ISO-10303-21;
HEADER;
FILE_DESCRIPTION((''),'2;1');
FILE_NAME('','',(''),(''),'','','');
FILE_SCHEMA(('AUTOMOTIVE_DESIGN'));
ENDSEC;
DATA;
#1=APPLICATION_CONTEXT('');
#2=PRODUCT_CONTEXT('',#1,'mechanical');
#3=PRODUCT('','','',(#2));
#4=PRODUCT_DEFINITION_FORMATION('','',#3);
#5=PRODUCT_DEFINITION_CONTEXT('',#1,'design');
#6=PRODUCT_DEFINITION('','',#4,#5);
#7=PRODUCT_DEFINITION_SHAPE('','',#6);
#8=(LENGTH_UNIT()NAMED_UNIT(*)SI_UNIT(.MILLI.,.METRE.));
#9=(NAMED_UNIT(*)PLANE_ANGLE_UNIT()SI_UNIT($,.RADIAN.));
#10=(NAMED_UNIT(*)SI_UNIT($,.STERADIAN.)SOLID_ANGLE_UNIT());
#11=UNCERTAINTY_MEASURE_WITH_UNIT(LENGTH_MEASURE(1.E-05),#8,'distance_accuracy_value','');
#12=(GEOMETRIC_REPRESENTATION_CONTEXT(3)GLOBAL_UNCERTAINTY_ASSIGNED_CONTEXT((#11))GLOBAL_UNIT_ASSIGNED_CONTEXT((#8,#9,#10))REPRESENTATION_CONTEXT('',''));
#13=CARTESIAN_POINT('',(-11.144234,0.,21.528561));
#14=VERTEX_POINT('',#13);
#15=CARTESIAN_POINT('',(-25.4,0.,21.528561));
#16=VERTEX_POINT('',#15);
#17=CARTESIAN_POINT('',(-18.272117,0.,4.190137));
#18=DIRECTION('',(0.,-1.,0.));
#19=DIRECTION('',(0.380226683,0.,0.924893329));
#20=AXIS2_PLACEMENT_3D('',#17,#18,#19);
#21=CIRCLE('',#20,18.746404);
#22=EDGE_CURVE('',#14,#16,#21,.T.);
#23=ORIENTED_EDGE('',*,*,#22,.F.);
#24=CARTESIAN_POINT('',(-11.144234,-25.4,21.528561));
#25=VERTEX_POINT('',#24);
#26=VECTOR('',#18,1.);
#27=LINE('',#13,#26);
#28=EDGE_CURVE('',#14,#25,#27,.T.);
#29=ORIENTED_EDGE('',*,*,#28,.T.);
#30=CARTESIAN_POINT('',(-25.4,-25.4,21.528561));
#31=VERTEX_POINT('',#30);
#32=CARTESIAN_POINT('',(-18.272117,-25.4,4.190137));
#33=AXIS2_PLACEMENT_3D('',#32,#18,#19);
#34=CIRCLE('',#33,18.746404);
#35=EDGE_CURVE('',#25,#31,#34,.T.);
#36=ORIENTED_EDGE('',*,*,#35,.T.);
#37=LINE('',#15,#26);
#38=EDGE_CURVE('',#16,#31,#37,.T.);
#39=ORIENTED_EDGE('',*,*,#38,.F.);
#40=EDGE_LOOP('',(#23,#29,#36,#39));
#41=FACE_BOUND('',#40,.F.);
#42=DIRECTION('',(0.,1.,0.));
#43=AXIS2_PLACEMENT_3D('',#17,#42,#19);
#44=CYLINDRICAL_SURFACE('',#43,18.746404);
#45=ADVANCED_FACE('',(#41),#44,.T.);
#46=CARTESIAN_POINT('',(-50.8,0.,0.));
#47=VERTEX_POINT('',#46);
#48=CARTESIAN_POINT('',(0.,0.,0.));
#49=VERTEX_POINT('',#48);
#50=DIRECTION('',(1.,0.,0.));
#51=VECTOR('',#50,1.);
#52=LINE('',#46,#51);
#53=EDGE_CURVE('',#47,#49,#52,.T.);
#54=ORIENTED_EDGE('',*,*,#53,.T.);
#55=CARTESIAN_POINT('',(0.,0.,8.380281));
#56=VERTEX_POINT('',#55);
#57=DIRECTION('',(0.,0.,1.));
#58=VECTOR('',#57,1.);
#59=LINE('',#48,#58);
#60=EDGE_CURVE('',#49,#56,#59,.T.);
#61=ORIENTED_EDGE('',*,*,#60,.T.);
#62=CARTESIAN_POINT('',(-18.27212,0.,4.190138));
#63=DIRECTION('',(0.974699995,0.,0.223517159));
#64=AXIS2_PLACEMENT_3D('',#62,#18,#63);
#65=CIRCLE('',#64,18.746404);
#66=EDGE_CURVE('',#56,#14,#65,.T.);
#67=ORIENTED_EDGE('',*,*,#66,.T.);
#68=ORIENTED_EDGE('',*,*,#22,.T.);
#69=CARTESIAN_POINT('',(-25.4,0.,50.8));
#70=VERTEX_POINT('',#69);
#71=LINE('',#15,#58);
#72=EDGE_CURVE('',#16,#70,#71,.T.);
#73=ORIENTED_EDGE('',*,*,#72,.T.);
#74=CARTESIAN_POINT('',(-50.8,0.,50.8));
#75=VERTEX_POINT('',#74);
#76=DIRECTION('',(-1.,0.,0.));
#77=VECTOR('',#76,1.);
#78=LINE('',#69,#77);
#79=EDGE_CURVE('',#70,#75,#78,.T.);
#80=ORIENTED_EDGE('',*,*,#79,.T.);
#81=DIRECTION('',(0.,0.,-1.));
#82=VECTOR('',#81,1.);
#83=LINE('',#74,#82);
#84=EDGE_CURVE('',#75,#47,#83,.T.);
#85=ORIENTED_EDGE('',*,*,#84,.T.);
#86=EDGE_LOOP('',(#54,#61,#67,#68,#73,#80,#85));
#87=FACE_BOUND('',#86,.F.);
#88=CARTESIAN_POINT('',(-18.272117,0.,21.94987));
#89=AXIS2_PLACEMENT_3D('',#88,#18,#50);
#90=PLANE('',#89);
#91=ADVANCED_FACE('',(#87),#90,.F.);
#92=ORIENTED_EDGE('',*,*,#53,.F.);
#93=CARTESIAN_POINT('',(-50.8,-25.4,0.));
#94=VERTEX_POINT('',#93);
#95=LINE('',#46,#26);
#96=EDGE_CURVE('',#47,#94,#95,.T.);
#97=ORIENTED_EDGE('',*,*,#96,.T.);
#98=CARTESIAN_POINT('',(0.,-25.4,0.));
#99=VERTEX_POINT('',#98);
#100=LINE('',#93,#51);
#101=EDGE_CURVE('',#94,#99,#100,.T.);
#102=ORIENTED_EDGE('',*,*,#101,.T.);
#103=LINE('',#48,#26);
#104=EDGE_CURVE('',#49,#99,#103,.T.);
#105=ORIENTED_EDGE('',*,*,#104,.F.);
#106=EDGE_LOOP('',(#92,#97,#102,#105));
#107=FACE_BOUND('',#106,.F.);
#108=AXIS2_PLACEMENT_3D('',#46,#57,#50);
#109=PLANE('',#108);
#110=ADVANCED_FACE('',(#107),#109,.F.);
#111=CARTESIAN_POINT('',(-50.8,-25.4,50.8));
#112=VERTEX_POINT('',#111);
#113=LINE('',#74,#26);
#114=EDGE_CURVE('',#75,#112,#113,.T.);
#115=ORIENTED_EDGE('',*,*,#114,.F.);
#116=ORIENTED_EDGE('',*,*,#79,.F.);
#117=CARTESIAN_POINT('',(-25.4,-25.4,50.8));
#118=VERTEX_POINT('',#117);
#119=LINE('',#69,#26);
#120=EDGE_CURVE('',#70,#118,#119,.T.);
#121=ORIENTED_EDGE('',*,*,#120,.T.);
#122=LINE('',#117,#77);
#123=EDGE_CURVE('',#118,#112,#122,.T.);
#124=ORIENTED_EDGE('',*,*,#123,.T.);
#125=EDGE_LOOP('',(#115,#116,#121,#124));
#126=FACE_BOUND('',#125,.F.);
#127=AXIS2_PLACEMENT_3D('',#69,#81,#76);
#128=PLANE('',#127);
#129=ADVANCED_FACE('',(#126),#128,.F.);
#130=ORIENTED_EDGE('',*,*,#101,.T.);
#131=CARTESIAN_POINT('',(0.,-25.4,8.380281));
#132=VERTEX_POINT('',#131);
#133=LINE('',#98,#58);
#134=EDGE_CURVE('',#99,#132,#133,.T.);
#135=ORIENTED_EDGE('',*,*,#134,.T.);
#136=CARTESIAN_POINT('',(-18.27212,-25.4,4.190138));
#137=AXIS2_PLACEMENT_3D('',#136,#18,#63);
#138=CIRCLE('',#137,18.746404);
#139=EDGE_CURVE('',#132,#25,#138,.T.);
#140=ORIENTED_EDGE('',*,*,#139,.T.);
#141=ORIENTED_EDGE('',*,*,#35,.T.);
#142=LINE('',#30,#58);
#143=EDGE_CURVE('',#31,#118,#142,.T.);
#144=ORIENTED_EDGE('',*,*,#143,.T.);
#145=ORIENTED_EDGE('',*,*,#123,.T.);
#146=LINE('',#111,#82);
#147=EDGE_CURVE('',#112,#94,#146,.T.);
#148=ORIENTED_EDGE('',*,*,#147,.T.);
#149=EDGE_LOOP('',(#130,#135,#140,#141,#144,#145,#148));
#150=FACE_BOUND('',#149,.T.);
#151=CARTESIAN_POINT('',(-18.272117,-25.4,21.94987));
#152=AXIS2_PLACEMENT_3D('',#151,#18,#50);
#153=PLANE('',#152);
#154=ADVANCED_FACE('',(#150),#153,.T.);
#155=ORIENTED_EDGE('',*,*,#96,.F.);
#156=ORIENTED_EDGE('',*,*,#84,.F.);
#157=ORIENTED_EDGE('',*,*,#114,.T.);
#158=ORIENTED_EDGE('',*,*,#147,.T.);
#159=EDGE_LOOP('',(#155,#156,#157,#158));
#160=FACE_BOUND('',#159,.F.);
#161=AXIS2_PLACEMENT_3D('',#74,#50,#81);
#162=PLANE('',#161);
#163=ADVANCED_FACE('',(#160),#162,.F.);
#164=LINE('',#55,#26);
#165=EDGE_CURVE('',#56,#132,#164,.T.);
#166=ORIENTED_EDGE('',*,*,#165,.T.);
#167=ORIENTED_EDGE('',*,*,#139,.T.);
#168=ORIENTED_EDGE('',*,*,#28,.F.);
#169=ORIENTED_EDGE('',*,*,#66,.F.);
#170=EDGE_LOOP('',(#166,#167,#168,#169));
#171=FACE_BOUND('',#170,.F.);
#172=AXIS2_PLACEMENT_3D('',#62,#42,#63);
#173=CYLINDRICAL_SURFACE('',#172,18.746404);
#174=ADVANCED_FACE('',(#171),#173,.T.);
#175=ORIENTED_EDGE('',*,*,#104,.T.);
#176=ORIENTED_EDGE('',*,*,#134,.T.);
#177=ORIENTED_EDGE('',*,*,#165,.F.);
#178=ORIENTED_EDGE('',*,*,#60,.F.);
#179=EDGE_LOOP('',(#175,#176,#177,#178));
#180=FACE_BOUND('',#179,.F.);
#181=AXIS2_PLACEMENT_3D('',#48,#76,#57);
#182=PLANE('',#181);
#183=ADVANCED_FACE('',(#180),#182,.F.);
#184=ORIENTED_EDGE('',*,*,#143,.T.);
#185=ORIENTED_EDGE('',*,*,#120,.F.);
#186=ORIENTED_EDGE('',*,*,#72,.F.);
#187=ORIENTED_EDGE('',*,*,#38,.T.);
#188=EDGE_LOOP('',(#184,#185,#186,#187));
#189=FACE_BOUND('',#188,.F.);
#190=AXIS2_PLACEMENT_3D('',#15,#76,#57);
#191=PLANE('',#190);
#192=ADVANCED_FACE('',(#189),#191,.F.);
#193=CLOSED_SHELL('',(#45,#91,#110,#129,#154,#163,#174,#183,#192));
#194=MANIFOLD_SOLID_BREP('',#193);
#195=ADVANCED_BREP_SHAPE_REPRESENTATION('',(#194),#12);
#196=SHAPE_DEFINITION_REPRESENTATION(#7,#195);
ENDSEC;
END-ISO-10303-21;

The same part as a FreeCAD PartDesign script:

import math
import FreeCAD as App
import Part
import Sketcher
Q = App.Units.Quantity

doc = App.newDocument("Part")
params = doc.addObject("Spreadsheet::Sheet", "Params")
for row, (alias, value) in enumerate([
    ("sketch1_width", "2 in"),
    ("sketch1_width2", "1 in"),
    ("pad1_length", "1 in"),
    ("pad2_length", "1 in"),
], start=1):
    params.set(f"A{row}", alias)
    params.set(f"B{row}", "=" + value)
    params.setAlias(f"B{row}", alias)

body = doc.addObject("PartDesign::Body", "Body")

# Sketch on XZ plane
sketch1 = body.newObject("Sketcher::SketchObject", "Sketch")
sketch1.AttachmentSupport = (doc.getObject("XZ_Plane"), [""])
sketch1.MapMode = "FlatFace"
sketch1.addGeometry([
    Part.LineSegment(App.Vector(-50.8, 0, 0), App.Vector(0, 0, 0)),  # 0
    Part.LineSegment(App.Vector(0, 0, 0), App.Vector(0, 8.380281, 0)),  # 1
    Part.ArcOfCircle(Part.Circle(App.Vector(-18.27212, 4.190138, 0), App.Vector(0, 0, 1), 18.746404), math.radians(12.915697), math.radians(67.652265)),  # 2
    Part.LineSegment(App.Vector(-11.144234, 21.528561, 0), App.Vector(-25.4, 21.528561, 0)),  # 3
    Part.LineSegment(App.Vector(-25.4, 21.528561, 0), App.Vector(-25.4, 50.8, 0)),  # 4
    Part.LineSegment(App.Vector(-25.4, 50.8, 0), App.Vector(-50.8, 50.8, 0)),  # 5
    Part.LineSegment(App.Vector(-50.8, 50.8, 0), App.Vector(-50.8, 0, 0)),  # 6
], False)
sketch1.addConstraint([
    Sketcher.Constraint("Coincident", 0, 2, 1, 1),
    Sketcher.Constraint("Coincident", 1, 2, 2, 1),
    Sketcher.Constraint("Coincident", 2, 2, 3, 1),
    Sketcher.Constraint("Coincident", 3, 2, 4, 1),
    Sketcher.Constraint("Coincident", 4, 2, 5, 1),
    Sketcher.Constraint("Coincident", 5, 2, 6, 1),
    Sketcher.Constraint("Coincident", 6, 2, 0, 1),
    Sketcher.Constraint("Horizontal", 0),
    Sketcher.Constraint("Vertical", 1),
    Sketcher.Constraint("Horizontal", 3),
    Sketcher.Constraint("Vertical", 4),
    Sketcher.Constraint("Horizontal", 5),
    Sketcher.Constraint("Vertical", 6),
    Sketcher.Constraint("Coincident", 0, 2, -1, 1),
    Sketcher.Constraint("Equal", 0, 6),
    Sketcher.Constraint("DistanceX", 0, 1, 0, 2, Q("2 in")),
    Sketcher.Constraint("DistanceX", 5, 2, 5, 1, Q("1 in")),
    Sketcher.Constraint("Radius", 2, Q("18.746404 mm")),
    Sketcher.Constraint("DistanceY", 1, 1, 1, 2, Q("8.380281 mm")),
    Sketcher.Constraint("DistanceY", 4, 1, 4, 2, Q("29.271439 mm")),
    Sketcher.Constraint("DistanceX", 3, 2, 3, 1, Q("14.255766 mm")),
])
sketch1.setExpression("Constraints[15]", "Params.sketch1_width")
sketch1.setExpression("Constraints[16]", "Params.sketch1_width2")
pad1 = body.newObject("PartDesign::Pad", "Pad")
pad1.Profile = sketch1
pad1.setExpression("Length", "Params.pad1_length")

# Sketch on XZ plane
sketch2 = body.newObject("Sketcher::SketchObject", "Sketch001")
sketch2.AttachmentSupport = (doc.getObject("XZ_Plane"), [""])
sketch2.MapMode = "FlatFace"
sketch2.addGeometry([
    Part.LineSegment(App.Vector(-25.4, 21.528561, 0), App.Vector(-11.144234, 21.528561, 0)),
    Part.ArcOfCircle(Part.Circle(App.Vector(-18.272117, 4.190137, 0), App.Vector(0, 0, 1), 18.746404), math.radians(67.652275), math.radians(112.347725)),
], False)
sketch2.addConstraint([
    Sketcher.Constraint("Coincident", 0, 1, 1, 2),
    Sketcher.Constraint("Coincident", 1, 1, 0, 2),
    Sketcher.Constraint("Horizontal", 0),
    Sketcher.Constraint("DistanceX", 0, 1, -1, 1, Q("1 in")),
    Sketcher.Constraint("Radius", 1, Q("18.746404 mm")),
    Sketcher.Constraint("DistanceX", 0, 1, 0, 2, Q("14.255766 mm")),
    Sketcher.Constraint("DistanceY", -1, 1, 0, 1, Q("21.528561 mm")),
])
pad2 = body.newObject("PartDesign::Pad", "Pad001")
pad2.Profile = sketch2
pad2.setExpression("Length", "Params.pad2_length")

doc.recompute()
